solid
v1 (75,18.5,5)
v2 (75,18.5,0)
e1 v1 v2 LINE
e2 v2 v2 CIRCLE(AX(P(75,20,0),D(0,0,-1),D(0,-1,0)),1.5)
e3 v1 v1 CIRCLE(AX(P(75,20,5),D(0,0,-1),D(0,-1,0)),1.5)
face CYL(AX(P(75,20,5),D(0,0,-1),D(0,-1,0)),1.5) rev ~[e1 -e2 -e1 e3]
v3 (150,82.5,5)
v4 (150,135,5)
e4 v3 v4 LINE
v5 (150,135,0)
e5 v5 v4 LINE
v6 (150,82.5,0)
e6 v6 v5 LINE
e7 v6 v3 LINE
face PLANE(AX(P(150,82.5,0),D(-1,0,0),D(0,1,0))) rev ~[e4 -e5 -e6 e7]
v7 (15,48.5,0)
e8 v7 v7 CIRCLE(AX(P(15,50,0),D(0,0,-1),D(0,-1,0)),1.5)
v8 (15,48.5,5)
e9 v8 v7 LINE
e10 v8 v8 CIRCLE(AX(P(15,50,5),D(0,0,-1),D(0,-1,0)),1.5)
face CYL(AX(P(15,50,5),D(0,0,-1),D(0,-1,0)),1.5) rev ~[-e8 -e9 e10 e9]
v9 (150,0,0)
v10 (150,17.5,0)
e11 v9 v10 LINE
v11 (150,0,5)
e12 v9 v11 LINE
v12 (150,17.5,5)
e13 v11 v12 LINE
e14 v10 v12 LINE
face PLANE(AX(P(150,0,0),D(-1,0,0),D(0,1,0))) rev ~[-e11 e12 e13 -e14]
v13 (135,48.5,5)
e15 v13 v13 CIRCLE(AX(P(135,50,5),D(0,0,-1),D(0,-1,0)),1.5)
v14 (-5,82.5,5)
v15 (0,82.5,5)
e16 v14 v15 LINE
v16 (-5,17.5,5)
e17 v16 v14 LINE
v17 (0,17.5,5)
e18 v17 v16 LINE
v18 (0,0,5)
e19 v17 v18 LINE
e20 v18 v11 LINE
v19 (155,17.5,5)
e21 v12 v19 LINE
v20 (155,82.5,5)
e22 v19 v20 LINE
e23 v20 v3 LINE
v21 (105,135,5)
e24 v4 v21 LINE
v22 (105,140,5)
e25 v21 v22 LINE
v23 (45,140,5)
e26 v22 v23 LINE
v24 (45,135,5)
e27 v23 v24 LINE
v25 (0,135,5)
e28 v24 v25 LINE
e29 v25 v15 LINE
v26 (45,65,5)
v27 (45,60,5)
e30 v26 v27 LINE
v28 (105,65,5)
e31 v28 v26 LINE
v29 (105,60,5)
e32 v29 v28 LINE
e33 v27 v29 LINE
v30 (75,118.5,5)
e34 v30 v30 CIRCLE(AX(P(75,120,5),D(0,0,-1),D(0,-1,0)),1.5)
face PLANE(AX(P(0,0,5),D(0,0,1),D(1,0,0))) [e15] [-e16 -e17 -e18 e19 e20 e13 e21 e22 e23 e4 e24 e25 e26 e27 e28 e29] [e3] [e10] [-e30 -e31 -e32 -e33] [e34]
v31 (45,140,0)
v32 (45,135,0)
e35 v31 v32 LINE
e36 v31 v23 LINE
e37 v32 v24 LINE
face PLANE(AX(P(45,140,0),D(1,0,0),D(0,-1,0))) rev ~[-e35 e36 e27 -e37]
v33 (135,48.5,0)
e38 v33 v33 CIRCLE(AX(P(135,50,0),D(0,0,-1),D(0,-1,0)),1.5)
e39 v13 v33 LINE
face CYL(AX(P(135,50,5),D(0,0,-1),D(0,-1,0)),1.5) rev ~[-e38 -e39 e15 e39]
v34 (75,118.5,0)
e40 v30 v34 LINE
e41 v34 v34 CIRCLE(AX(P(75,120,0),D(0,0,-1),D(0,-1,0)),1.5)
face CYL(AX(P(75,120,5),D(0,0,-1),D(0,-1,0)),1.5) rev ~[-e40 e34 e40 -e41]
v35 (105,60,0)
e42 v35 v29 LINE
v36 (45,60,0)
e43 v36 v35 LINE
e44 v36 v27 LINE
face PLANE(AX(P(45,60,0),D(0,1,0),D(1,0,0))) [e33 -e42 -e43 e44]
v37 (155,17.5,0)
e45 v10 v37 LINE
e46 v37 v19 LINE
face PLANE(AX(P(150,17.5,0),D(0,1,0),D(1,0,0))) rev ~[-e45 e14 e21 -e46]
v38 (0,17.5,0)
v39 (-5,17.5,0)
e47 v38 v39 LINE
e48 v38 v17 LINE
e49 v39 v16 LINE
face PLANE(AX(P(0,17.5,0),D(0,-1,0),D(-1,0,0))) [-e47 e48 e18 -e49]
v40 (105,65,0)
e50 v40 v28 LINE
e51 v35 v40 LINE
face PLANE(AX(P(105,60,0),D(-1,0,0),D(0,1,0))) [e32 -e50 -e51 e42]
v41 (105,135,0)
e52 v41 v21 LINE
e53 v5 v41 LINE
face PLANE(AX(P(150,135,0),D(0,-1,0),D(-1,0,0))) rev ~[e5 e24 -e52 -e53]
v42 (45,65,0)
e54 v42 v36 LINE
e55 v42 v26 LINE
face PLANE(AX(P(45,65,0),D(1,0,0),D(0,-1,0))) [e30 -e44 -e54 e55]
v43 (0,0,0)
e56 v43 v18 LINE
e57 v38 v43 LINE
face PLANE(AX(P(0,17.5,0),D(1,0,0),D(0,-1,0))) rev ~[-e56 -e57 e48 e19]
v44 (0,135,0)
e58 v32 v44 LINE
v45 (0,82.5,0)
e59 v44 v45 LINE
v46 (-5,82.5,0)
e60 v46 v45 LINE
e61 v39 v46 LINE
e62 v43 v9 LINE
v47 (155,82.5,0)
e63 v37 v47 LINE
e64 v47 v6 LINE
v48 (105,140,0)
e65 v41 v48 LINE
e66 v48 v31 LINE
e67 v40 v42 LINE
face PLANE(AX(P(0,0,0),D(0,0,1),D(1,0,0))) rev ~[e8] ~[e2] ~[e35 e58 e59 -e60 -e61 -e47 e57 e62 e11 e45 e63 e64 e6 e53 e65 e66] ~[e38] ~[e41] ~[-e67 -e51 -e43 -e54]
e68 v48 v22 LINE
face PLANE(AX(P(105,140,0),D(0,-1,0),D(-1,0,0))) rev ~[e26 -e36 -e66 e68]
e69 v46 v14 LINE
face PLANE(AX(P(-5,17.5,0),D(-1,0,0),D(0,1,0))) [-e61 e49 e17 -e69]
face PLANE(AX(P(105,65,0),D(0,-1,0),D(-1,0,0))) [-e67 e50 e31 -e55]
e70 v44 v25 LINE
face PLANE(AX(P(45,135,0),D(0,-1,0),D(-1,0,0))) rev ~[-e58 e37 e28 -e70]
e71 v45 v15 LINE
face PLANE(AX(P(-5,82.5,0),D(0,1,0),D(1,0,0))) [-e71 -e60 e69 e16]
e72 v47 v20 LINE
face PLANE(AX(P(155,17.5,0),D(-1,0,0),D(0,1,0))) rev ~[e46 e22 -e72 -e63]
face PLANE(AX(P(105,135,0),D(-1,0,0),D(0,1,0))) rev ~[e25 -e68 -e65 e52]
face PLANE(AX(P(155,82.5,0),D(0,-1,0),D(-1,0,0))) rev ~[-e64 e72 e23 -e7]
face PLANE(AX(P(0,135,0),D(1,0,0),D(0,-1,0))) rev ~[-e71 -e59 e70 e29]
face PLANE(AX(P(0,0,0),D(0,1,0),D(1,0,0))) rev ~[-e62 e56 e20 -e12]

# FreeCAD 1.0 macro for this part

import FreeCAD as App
import Part
import Sketcher

doc = App.newDocument("Part")
body = doc.addObject("PartDesign::Body", "Body")

# Sketch on XY plane
sketch1 = body.newObject("Sketcher::SketchObject", "Sketch")
sketch1.AttachmentSupport = (doc.getObject("XY_Plane"), [""])
sketch1.MapMode = "FlatFace"
sketch1.addGeometry([
    Part.LineSegment(App.Vector(0, 18, 0), App.Vector(0, 0, 0)),  # 0
    Part.LineSegment(App.Vector(0, 0, 0), App.Vector(150, 0, 0)),  # 1
    Part.LineSegment(App.Vector(150, 0, 0), App.Vector(150, 18, 0)),  # 2
    Part.LineSegment(App.Vector(150, 18, 0), App.Vector(155, 18, 0)),  # 3
    Part.LineSegment(App.Vector(155, 18, 0), App.Vector(155, 82, 0)),  # 4
    Part.LineSegment(App.Vector(155, 82, 0), App.Vector(150, 82, 0)),  # 5
    Part.LineSegment(App.Vector(150, 82, 0), App.Vector(150, 135, 0)),  # 6
    Part.LineSegment(App.Vector(150, 135, 0), App.Vector(105, 135, 0)),  # 7
    Part.LineSegment(App.Vector(105, 135, 0), App.Vector(105, 140, 0)),  # 8
    Part.LineSegment(App.Vector(105, 140, 0), App.Vector(45, 140, 0)),  # 9
    Part.LineSegment(App.Vector(45, 140, 0), App.Vector(45, 135, 0)),  # 10
    Part.LineSegment(App.Vector(45, 135, 0), App.Vector(0, 135, 0)),  # 11
    Part.LineSegment(App.Vector(0, 135, 0), App.Vector(0, 82, 0)),  # 12
    Part.LineSegment(App.Vector(0, 82, 0), App.Vector(-5, 82, 0)),  # 13
    Part.LineSegment(App.Vector(-5, 82, 0), App.Vector(-5, 18, 0)),  # 14
    Part.LineSegment(App.Vector(-5, 18, 0), App.Vector(0, 18, 0)),  # 15
    Part.LineSegment(App.Vector(105, 60, 0), App.Vector(45, 60, 0)),  # 16
    Part.LineSegment(App.Vector(45, 60, 0), App.Vector(45, 65, 0)),  # 17
    Part.LineSegment(App.Vector(45, 65, 0), App.Vector(105, 65, 0)),  # 18
    Part.LineSegment(App.Vector(105, 65, 0), App.Vector(105, 60, 0)),  # 19
], False)
sketch1.addConstraint([
    Sketcher.Constraint("Coincident", 0, 2, 1, 1),
    Sketcher.Constraint("Coincident", 1, 2, 2, 1),
    Sketcher.Constraint("Coincident", 2, 2, 3, 1),
    Sketcher.Constraint("Coincident", 3, 2, 4, 1),
    Sketcher.Constraint("Coincident", 4, 2, 5, 1),
    Sketcher.Constraint("Coincident", 5, 2, 6, 1),
    Sketcher.Constraint("Coincident", 6, 2, 7, 1),
    Sketcher.Constraint("Coincident", 7, 2, 8, 1),
    Sketcher.Constraint("Coincident", 8, 2, 9, 1),
    Sketcher.Constraint("Coincident", 9, 2, 10, 1),
    Sketcher.Constraint("Coincident", 10, 2, 11, 1),
    Sketcher.Constraint("Coincident", 11, 2, 12, 1),
    Sketcher.Constraint("Coincident", 12, 2, 13, 1),
    Sketcher.Constraint("Coincident", 13, 2, 14, 1),
    Sketcher.Constraint("Coincident", 14, 2, 15, 1),
    Sketcher.Constraint("Coincident", 15, 2, 0, 1),
    Sketcher.Constraint("Coincident", 16, 2, 17, 1),
    Sketcher.Constraint("Coincident", 17, 2, 18, 1),
    Sketcher.Constraint("Coincident", 18, 2, 19, 1),
    Sketcher.Constraint("Coincident", 19, 2, 16, 1),
    Sketcher.Constraint("Vertical", 0),
    Sketcher.Constraint("Horizontal", 1),
    Sketcher.Constraint("Vertical", 2),
    Sketcher.Constraint("Horizontal", 3),
    Sketcher.Constraint("Vertical", 4),
    Sketcher.Constraint("Horizontal", 5),
    Sketcher.Constraint("Vertical", 6),
    Sketcher.Constraint("Horizontal", 7),
    Sketcher.Constraint("Vertical", 8),
    Sketcher.Constraint("Horizontal", 9),
    Sketcher.Constraint("Vertical", 10),
    Sketcher.Constraint("Horizontal", 11),
    Sketcher.Constraint("Vertical", 12),
    Sketcher.Constraint("Horizontal", 13),
    Sketcher.Constraint("Vertical", 14),
    Sketcher.Constraint("Horizontal", 15),
    Sketcher.Constraint("Horizontal", 16),
    Sketcher.Constraint("Vertical", 17),
    Sketcher.Constraint("Horizontal", 18),
    Sketcher.Constraint("Vertical", 19),
    Sketcher.Constraint("Coincident", 0, 2, -1, 1),
    Sketcher.Constraint("PointOnObject", 11, 2, -2),
    Sketcher.Constraint("Horizontal", 7, 2, 10, 2),
    Sketcher.Constraint("Horizontal", 5, 2, 12, 2),
    Sketcher.Constraint("Horizontal", 3, 2, 14, 2),
    Sketcher.Constraint("Vertical", 2, 2, 5, 2),
    Sketcher.Constraint("Vertical", 10, 2, 16, 2),
    Sketcher.Constraint("Vertical", 8, 2, 18, 2),
    Sketcher.Constraint("Equal", 7, 11),
    Sketcher.Constraint("Equal", 5, 13),
    Sketcher.Constraint("Equal", 15, 8),
    Sketcher.Constraint("Equal", 10, 17),
    Sketcher.Constraint("DistanceX", 1, 1, 1, 2, 150.0),
    Sketcher.Constraint("DistanceX", 3, 1, 3, 2, 5.0),
    Sketcher.Constraint("DistanceX", 7, 2, 7, 1, 45.0),
    Sketcher.Constraint("DistanceY", 4, 1, 4, 2, 65.0),
    Sketcher.Constraint("DistanceY", 6, 1, 6, 2, 52.5),
    Sketcher.Constraint("DistanceY", -1, 1, 6, 2, 135.0),
    Sketcher.Constraint("DistanceY", -1, 1, 16, 2, 60.0),
])
pad1 = body.newObject("PartDesign::Pad", "Pad")
pad1.Profile = sketch1
pad1.Length = 5

# Sketch on XY plane
sketch2 = body.newObject("Sketcher::SketchObject", "Sketch001")
sketch2.AttachmentSupport = (doc.getObject("XY_Plane"), [""])
sketch2.MapMode = "FlatFace"
sketch2.AttachmentOffset = App.Placement(App.Vector(0, 0, 5), App.Rotation())
sketch2.addGeometry(Part.Circle(App.Vector(75, 20, 0), App.Vector(0, 0, 1), 1.5), False)
sketch2.addConstraint([
    Sketcher.Constraint("Diameter", 0, 3.0),
    Sketcher.Constraint("DistanceX", -1, 1, 0, 3, 75.0),
    Sketcher.Constraint("DistanceY", -1, 1, 0, 3, 20.0),
])
doc.recompute()
hole = body.newObject("PartDesign::Hole", "Hole")
hole.Profile = sketch2
hole.ThreadType = "None"
hole.Diameter = 3
hole.DepthType = "ThroughAll"

# Sketch on XY plane
sketch3 = body.newObject("Sketcher::SketchObject", "Sketch002")
sketch3.AttachmentSupport = (doc.getObject("XY_Plane"), [""])
sketch3.MapMode = "FlatFace"
sketch3.AttachmentOffset = App.Placement(App.Vector(0, 0, 5), App.Rotation())
sketch3.addGeometry(Part.Circle(App.Vector(75, 120, 0), App.Vector(0, 0, 1), 1.5), False)
sketch3.addConstraint([
    Sketcher.Constraint("Diameter", 0, 3.0),
    Sketcher.Constraint("DistanceX", -1, 1, 0, 3, 75.0),
    Sketcher.Constraint("DistanceY", -1, 1, 0, 3, 120.0),
])
doc.recompute()
hole2 = body.newObject("PartDesign::Hole", "Hole001")
hole2.Profile = sketch3
hole2.ThreadType = "None"
hole2.Diameter = 3
hole2.DepthType = "ThroughAll"

# Sketch on XY plane
sketch4 = body.newObject("Sketcher::SketchObject", "Sketch003")
sketch4.AttachmentSupport = (doc.getObject("XY_Plane"), [""])
sketch4.MapMode = "FlatFace"
sketch4.AttachmentOffset = App.Placement(App.Vector(0, 0, 5), App.Rotation())
sketch4.addGeometry([
    Part.Circle(App.Vector(135, 50, 0), App.Vector(0, 0, 1), 1.5),
    Part.Circle(App.Vector(15, 50, 0), App.Vector(0, 0, 1), 1.5),
], False)
sketch4.addConstraint([
    Sketcher.Constraint("Equal", 0, 1),
    Sketcher.Constraint("Horizontal", 0, 3, 1, 3),
    Sketcher.Constraint("Diameter", 0, 3.0),
    Sketcher.Constraint("DistanceX", -1, 1, 0, 3, 135.0),
    Sketcher.Constraint("DistanceY", -1, 1, 0, 3, 50.0),
    Sketcher.Constraint("DistanceX", -1, 1, 1, 3, 15.0),
])
doc.recompute()
hole3 = body.newObject("PartDesign::Hole", "Hole002")
hole3.Profile = sketch4
hole3.ThreadType = "None"
hole3.Diameter = 3
hole3.DepthType = "ThroughAll"

doc.recompute()
